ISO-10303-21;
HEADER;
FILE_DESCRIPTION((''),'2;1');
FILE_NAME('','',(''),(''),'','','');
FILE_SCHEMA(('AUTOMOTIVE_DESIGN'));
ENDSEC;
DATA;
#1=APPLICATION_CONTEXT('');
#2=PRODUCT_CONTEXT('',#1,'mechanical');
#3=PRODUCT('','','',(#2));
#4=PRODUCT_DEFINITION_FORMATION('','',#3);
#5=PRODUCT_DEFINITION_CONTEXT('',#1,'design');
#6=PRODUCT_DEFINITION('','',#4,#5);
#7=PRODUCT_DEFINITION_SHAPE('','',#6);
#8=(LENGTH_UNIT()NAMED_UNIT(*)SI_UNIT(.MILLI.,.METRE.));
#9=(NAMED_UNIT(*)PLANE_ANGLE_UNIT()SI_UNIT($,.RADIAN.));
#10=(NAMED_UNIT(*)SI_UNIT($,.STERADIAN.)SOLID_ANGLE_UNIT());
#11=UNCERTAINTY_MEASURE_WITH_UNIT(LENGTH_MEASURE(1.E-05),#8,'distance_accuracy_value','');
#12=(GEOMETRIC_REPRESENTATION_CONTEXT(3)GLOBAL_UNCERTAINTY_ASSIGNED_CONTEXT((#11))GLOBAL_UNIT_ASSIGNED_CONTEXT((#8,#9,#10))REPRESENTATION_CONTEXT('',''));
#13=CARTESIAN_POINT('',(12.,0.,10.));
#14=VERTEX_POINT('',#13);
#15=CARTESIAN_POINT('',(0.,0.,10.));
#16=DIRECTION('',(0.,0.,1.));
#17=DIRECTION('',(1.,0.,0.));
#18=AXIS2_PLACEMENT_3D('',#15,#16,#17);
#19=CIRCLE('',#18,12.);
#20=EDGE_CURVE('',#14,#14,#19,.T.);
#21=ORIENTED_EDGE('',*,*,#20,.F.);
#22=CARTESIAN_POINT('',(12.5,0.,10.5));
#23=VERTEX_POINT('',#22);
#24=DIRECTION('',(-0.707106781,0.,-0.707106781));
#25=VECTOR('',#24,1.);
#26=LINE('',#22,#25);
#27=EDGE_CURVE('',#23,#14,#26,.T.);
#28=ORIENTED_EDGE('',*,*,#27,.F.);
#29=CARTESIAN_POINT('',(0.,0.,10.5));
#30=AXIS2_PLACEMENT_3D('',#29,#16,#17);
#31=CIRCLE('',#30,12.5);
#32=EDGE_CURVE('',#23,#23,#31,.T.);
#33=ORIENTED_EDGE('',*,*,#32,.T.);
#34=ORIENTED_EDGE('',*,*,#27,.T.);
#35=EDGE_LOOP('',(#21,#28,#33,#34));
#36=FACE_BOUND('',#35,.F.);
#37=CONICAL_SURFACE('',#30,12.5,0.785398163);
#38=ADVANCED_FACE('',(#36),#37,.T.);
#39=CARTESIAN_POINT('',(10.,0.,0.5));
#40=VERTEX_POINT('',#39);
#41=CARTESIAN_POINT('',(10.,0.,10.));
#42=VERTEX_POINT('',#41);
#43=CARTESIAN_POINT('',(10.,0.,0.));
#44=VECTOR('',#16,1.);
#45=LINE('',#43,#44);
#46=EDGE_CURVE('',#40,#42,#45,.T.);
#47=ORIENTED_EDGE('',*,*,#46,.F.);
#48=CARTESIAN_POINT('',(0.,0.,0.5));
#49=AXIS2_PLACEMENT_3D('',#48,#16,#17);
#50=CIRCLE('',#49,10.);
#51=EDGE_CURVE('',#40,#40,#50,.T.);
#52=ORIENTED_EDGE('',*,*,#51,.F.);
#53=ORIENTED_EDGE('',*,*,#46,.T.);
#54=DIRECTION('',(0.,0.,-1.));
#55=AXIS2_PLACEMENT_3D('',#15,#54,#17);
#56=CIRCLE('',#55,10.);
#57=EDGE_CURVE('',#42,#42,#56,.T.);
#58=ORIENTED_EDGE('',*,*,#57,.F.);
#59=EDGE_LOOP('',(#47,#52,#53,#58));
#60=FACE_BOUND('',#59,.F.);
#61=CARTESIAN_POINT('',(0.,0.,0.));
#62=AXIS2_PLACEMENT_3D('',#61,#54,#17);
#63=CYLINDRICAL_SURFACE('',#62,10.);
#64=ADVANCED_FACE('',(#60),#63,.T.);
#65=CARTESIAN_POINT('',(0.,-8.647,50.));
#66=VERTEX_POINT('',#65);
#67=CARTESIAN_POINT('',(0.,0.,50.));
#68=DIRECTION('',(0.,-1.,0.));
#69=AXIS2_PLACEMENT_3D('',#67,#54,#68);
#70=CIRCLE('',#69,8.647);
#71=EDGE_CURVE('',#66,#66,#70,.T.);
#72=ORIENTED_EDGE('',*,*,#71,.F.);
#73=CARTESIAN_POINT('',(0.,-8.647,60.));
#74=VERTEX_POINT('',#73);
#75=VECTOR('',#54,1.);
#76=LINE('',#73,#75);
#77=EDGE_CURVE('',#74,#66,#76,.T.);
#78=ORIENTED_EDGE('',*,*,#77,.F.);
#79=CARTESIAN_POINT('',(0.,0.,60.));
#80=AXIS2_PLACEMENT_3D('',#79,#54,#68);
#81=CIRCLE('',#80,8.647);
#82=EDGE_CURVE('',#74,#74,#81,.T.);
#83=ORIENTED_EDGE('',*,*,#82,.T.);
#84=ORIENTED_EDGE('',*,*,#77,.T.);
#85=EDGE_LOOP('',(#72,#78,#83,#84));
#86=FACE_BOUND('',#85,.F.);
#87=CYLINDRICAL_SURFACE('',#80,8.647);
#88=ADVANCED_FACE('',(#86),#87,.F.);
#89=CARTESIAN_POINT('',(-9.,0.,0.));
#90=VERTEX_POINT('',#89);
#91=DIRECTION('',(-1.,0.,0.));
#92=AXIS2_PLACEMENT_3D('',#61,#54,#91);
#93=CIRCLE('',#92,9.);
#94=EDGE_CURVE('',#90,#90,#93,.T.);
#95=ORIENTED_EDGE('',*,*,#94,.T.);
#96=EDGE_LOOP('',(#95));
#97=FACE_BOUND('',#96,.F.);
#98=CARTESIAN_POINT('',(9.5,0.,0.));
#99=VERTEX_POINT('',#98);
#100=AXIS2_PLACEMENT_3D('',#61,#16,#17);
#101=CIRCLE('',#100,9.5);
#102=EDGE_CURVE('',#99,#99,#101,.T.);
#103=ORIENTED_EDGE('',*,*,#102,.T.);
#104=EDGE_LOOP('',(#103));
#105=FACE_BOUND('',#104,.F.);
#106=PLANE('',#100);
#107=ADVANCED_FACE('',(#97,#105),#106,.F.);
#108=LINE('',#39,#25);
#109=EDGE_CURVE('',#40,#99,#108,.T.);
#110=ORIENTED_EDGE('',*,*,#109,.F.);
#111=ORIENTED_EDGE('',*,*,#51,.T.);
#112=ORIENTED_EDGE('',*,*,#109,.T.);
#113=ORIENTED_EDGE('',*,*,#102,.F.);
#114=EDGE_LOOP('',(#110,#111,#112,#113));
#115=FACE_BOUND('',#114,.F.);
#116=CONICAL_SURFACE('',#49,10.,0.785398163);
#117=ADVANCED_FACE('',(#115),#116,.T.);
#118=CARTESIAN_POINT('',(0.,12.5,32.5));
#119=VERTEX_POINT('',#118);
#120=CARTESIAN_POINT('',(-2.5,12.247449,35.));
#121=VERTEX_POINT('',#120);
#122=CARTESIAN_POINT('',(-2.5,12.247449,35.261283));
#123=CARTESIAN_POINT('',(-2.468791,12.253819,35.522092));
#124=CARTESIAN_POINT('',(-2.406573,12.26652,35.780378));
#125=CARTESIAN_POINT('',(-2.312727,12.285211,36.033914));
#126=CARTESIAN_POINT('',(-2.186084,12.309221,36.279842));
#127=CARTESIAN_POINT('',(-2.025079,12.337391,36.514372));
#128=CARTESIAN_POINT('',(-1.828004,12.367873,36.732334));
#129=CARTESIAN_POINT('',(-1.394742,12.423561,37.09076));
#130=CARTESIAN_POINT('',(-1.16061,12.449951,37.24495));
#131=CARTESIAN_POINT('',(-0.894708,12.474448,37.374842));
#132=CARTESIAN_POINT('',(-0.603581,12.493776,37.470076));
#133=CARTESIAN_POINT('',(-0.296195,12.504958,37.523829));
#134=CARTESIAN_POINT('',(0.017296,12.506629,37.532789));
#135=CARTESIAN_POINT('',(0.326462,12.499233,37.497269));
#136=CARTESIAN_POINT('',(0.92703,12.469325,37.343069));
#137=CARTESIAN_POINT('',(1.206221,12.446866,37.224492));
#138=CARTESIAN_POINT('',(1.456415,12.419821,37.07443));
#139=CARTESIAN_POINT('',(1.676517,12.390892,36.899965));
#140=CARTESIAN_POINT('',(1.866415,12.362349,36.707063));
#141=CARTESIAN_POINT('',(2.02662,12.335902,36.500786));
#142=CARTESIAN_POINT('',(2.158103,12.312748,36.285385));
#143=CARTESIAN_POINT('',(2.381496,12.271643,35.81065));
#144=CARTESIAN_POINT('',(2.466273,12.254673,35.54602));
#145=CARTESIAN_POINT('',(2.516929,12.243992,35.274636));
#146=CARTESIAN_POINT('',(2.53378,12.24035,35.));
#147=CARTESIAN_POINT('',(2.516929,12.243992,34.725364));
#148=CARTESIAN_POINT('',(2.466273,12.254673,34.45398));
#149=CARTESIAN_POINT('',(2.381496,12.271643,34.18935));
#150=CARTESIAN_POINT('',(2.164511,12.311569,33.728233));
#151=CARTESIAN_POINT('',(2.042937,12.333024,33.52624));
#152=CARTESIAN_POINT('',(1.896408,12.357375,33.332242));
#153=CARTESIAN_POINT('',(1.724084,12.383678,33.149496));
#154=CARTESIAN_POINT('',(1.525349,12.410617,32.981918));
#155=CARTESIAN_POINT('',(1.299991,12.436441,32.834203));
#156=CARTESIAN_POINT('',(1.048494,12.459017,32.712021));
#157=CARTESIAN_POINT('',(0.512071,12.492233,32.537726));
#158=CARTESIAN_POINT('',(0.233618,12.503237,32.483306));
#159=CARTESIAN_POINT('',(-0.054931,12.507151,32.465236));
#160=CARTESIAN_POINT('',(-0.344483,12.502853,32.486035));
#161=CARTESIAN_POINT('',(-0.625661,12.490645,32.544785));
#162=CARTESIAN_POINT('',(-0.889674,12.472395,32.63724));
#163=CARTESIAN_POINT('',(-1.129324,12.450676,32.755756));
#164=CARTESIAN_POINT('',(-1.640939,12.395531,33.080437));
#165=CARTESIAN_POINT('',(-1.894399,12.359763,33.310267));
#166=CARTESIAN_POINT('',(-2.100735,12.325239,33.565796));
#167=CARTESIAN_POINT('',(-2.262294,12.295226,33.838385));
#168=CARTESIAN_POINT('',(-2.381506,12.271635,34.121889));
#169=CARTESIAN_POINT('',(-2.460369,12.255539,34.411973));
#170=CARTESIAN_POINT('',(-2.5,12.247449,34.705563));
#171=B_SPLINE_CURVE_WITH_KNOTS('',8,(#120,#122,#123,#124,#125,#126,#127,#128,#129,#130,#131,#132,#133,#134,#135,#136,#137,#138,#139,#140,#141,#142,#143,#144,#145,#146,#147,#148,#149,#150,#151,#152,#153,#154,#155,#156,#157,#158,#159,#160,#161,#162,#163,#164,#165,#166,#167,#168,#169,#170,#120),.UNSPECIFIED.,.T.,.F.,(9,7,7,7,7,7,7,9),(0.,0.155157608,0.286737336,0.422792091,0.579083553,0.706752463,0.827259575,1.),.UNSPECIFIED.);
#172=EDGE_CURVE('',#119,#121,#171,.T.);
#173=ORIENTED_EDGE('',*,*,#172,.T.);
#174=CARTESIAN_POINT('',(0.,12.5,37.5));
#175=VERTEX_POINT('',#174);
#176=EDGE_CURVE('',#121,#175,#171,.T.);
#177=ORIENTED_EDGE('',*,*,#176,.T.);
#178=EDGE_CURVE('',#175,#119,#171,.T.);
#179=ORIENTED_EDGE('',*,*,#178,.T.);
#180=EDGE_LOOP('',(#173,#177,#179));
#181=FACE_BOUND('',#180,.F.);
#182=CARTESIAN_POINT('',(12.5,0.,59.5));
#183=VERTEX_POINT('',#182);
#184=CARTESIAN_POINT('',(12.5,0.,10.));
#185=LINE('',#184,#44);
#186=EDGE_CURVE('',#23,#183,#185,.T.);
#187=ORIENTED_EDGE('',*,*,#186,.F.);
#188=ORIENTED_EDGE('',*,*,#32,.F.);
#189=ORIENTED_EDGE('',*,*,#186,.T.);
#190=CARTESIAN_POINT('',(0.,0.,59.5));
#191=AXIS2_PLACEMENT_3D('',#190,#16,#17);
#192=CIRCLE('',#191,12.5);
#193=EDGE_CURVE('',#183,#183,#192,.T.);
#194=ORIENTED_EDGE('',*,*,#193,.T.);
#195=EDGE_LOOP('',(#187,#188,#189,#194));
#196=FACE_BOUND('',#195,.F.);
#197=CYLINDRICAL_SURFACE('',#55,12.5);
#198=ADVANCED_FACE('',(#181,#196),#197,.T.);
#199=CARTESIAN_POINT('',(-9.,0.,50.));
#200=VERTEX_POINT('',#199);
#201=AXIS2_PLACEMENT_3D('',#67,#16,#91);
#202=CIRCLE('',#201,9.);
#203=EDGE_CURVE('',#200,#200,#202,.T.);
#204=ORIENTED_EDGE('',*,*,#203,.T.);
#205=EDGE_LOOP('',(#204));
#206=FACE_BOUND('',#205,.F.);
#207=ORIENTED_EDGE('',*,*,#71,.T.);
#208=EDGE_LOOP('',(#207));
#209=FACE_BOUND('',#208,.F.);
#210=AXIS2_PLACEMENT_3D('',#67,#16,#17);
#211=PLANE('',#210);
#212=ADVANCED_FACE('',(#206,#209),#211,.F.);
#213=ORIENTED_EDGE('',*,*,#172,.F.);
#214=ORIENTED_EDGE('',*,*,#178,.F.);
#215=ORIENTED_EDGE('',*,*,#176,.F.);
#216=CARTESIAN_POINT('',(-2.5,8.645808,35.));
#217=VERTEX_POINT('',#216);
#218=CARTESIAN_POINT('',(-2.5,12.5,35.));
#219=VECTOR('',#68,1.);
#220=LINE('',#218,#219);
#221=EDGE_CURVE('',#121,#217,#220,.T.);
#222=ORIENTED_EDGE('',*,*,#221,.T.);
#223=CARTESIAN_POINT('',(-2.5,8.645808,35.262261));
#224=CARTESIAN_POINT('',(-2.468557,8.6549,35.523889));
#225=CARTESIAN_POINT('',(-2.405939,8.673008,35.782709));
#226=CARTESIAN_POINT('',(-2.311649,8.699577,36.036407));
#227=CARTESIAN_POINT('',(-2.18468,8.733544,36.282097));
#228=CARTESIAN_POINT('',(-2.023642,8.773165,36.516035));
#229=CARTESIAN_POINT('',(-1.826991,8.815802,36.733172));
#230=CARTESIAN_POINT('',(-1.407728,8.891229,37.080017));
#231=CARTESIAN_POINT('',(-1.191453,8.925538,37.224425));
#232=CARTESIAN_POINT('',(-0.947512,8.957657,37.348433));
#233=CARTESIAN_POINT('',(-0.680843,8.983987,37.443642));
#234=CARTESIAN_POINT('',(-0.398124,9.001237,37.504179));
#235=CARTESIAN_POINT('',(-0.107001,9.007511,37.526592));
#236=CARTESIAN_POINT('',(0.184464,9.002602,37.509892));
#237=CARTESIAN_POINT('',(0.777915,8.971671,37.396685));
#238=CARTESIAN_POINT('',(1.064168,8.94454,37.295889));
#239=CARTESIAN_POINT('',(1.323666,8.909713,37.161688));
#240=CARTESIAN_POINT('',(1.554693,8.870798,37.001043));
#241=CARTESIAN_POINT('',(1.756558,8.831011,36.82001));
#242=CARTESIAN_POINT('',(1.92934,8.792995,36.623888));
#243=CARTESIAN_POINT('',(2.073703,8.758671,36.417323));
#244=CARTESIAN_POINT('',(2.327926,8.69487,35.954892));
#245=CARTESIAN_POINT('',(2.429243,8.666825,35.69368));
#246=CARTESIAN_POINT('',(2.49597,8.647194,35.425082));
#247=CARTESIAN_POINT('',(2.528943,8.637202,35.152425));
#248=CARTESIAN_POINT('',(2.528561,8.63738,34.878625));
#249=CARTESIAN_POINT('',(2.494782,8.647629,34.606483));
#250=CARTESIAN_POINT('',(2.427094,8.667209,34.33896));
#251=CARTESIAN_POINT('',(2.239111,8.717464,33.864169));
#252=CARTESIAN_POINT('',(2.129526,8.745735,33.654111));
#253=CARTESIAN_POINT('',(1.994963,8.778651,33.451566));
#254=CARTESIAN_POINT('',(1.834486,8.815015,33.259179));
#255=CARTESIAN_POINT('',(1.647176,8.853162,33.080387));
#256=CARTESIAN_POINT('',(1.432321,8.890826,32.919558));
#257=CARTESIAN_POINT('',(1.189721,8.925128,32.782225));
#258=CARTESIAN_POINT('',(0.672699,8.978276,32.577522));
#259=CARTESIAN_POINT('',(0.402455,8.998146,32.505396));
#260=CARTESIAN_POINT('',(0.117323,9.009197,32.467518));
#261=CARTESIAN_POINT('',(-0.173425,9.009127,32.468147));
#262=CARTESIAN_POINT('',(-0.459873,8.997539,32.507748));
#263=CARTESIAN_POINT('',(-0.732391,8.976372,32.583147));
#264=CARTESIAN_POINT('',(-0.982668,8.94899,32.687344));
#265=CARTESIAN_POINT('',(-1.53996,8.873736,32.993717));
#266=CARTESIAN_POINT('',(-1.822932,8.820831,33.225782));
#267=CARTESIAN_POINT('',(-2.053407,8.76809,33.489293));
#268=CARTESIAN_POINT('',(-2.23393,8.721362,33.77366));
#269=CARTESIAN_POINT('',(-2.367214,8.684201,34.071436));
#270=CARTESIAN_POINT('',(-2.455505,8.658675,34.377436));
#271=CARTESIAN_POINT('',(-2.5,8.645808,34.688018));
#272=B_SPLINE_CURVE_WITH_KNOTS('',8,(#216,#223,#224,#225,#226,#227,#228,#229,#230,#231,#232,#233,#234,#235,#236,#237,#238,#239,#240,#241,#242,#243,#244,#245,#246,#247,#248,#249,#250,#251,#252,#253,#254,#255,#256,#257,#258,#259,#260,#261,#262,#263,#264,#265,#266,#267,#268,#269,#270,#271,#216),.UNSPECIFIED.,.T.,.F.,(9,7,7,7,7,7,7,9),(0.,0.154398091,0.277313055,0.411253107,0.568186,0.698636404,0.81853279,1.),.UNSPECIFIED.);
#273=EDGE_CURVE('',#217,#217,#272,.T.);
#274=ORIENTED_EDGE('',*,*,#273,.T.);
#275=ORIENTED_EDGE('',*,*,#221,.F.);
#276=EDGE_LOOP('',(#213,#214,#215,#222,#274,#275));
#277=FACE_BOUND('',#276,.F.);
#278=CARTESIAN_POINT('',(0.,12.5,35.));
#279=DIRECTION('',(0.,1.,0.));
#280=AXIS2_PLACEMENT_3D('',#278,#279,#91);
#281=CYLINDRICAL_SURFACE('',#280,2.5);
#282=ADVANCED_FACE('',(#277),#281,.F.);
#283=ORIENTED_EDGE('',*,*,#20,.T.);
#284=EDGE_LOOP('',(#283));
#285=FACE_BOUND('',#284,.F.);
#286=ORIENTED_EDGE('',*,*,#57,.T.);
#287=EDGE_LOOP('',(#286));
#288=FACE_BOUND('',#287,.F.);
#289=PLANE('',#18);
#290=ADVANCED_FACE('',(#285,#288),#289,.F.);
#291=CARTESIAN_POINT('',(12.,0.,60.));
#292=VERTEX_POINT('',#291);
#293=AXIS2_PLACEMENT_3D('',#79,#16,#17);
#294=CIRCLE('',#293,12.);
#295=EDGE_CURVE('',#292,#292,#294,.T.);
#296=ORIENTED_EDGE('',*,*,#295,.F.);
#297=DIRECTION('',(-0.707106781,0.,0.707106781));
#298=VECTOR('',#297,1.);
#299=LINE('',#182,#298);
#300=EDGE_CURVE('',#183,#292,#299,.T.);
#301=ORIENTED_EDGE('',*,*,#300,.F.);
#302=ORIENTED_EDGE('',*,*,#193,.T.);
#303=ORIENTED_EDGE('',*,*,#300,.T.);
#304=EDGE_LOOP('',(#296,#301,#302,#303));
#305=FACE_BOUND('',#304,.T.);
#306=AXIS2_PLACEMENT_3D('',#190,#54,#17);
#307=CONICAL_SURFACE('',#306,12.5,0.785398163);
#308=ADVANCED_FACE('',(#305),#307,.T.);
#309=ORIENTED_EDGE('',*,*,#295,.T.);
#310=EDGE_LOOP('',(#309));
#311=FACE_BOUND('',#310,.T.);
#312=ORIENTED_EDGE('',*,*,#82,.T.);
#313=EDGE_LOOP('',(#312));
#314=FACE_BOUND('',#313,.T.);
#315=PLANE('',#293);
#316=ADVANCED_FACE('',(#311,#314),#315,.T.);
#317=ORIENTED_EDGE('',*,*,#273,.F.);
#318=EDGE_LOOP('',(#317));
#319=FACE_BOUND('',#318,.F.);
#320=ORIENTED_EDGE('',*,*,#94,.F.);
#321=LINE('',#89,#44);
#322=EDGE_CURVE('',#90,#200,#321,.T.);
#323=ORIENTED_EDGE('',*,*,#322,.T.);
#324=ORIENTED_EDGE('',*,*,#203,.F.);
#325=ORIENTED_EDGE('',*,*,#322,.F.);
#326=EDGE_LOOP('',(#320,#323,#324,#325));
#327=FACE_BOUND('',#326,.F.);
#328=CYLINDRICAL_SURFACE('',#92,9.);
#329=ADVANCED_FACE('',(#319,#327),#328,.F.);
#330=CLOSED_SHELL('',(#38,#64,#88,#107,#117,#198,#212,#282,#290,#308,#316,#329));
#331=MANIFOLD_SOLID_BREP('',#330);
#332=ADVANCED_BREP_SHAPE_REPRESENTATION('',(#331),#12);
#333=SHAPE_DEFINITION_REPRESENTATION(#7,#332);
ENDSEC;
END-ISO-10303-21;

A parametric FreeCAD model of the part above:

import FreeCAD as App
import Part
import Sketcher


def edges_at(feature, points):
    """Names of the edges that pass closest to the given points."""
    edges = feature.Shape.Edges
    near = lambda p: min(range(len(edges)), key=lambda i: edges[i].distToShape(Part.Vertex(*p))[0])
    return sorted({f"Edge{near(p) + 1}" for p in points})

doc = App.newDocument("Part")
body = doc.addObject("PartDesign::Body", "Body")

sketch1 = doc.addObject("Sketcher::SketchObject", "Sketch")
body.addObject(sketch1)
sketch1.AttachmentSupport = (doc.XY_Plane, [""])
sketch1.MapMode = "FlatFace"
sketch1.addGeometry(Part.Circle(App.Vector(0, 0, 0), App.Vector(0, 0, 1), 10), False)
sketch1.addConstraint(Sketcher.Constraint("Coincident", 0, 3, -1, 1))
sketch1.addConstraint(Sketcher.Constraint("Diameter", 0, 20.0))
pad1 = doc.addObject("PartDesign::Pad", "Pad")
body.addObject(pad1)
pad1.Profile = sketch1
pad1.Length = 10

sketch2 = doc.addObject("Sketcher::SketchObject", "Sketch001")
body.addObject(sketch2)
sketch2.AttachmentSupport = (doc.XY_Plane, [""])
sketch2.MapMode = "FlatFace"
sketch2.AttachmentOffset = App.Placement(App.Vector(0, 0, 10), App.Rotation())
sketch2.addGeometry(Part.Circle(App.Vector(0, 0, 0), App.Vector(0, 0, 1), 12), False)
sketch2.addConstraint(Sketcher.Constraint("Coincident", 0, 3, -1, 1))
sketch2.addConstraint(Sketcher.Constraint("Diameter", 0, 25.0))
pad2 = doc.addObject("PartDesign::Pad", "Pad001")
body.addObject(pad2)
pad2.Profile = sketch2
pad2.Length = 50

sketch3 = doc.addObject("Sketcher::SketchObject", "Sketch002")
body.addObject(sketch3)
sketch3.AttachmentSupport = (doc.XY_Plane, [""])
sketch3.MapMode = "FlatFace"
sketch3.AttachmentOffset = App.Placement(App.Vector(0, 0, 60), App.Rotation())
sketch3.addGeometry(Part.Circle(App.Vector(0, 0, 0), App.Vector(0, 0, 1), 10), False)
sketch3.addConstraint(Sketcher.Constraint("Coincident", 0, 3, -1, 1))
sketch3.addConstraint(Sketcher.Constraint("Diameter", 0, 20.0))
pad3 = doc.addObject("PartDesign::Pad", "Pad002")
body.addObject(pad3)
pad3.Profile = sketch3
pad3.Length = 10

sketch4 = doc.addObject("Sketcher::SketchObject", "Sketch003")
body.addObject(sketch4)
sketch4.AttachmentSupport = (doc.XY_Plane, [""])
sketch4.MapMode = "FlatFace"
sketch4.addGeometry(Part.Circle(App.Vector(0, 0, 0), App.Vector(0, 0, 1), 9), False)
sketch4.addConstraint(Sketcher.Constraint("Coincident", 0, 3, -1, 1))
sketch4.addConstraint(Sketcher.Constraint("Diameter", 0, 18.0))
pocket1 = doc.addObject("PartDesign::Pocket", "Pocket")
body.addObject(pocket1)
pocket1.Profile = sketch4
pocket1.Length = 70
pocket1.Reversed = True

sketch5 = doc.addObject("Sketcher::SketchObject", "Sketch004")
body.addObject(sketch5)
sketch5.AttachmentSupport = (doc.XZ_Plane, [""])
sketch5.MapMode = "FlatFace"
sketch5.AttachmentOffset = App.Placement(App.Vector(0, 0, -12.5), App.Rotation())
sketch5.addGeometry(Part.Circle(App.Vector(0, 35, 0), App.Vector(0, 0, 1), 2.5), False)
sketch5.addConstraint(Sketcher.Constraint("PointOnObject", 0, 3, -2))
sketch5.addConstraint(Sketcher.Constraint("Diameter", 0, 5.0))
sketch5.addConstraint(Sketcher.Constraint("DistanceY", -1, 1, 0, 3, 35.0))
pocket2 = doc.addObject("PartDesign::Pocket", "Pocket001")
body.addObject(pocket2)
pocket2.Profile = sketch5
pocket2.Length = 5
pocket2.Reversed = True
doc.recompute()

chamfer = doc.addObject("PartDesign::Chamfer", "Chamfer")
body.addObject(chamfer)
chamfer.Base = (pocket2, edges_at(pocket2, [
    (-10, 0, 0),
    (-10, 0, 70),
    (-12.5, 0, 10),
    (-12.5, 0, 60),
]))
chamfer.Size = 0.5

sketch6 = doc.addObject("Sketcher::SketchObject", "Sketch005")
body.addObject(sketch6)
sketch6.AttachmentSupport = (doc.XY_Plane, [""])
sketch6.MapMode = "FlatFace"
sketch6.AttachmentOffset = App.Placement(App.Vector(0, 0, 70), App.Rotation())
sketch6.addGeometry(Part.Circle(App.Vector(0, 0, 0), App.Vector(0, 0, 1), 11), False)
sketch6.addConstraint(Sketcher.Constraint("Coincident", 0, 3, -1, 1))
sketch6.addConstraint(Sketcher.Constraint("Diameter", 0, 22.53))
pocket3 = doc.addObject("PartDesign::Pocket", "Pocket002")
body.addObject(pocket3)
pocket3.Profile = sketch6
pocket3.Length = 10

sketch7 = doc.addObject("Sketcher::SketchObject", "Sketch006")
body.addObject(sketch7)
sketch7.AttachmentSupport = (doc.XY_Plane, [""])
sketch7.MapMode = "FlatFace"
sketch7.AttachmentOffset = App.Placement(App.Vector(0, 0, 60), App.Rotation())
sketch7.addGeometry(Part.Circle(App.Vector(0, 0, 0), App.Vector(0, 0, 1), 9), False)
sketch7.addConstraint(Sketcher.Constraint("Coincident", 0, 3, -1, 1))
sketch7.addConstraint(Sketcher.Constraint("Diameter", 0, 18.0))
pad4 = doc.addObject("PartDesign::Pad", "Pad003")
body.addObject(pad4)
pad4.Profile = sketch7
pad4.Length = 10
pad4.Reversed = True

sketch8 = doc.addObject("Sketcher::SketchObject", "Sketch007")
body.addObject(sketch8)
sketch8.AttachmentSupport = (doc.XY_Plane, [""])
sketch8.MapMode = "FlatFace"
sketch8.AttachmentOffset = App.Placement(App.Vector(0, 0, 60), App.Rotation())
sketch8.addGeometry(Part.Circle(App.Vector(0, 0, 0), App.Vector(0, 0, 1), 9), False)
sketch8.addConstraint(Sketcher.Constraint("Coincident", 0, 3, -1, 1))
sketch8.addConstraint(Sketcher.Constraint("Diameter", 0, 17.294))
doc.recompute()
hole = doc.addObject("PartDesign::Hole", "Hole")
body.addObject(hole)
hole.Profile = sketch8
hole.ThreadType = "None"
hole.Diameter = 17.294
hole.DepthType = "ThroughAll"

doc.recompute()
